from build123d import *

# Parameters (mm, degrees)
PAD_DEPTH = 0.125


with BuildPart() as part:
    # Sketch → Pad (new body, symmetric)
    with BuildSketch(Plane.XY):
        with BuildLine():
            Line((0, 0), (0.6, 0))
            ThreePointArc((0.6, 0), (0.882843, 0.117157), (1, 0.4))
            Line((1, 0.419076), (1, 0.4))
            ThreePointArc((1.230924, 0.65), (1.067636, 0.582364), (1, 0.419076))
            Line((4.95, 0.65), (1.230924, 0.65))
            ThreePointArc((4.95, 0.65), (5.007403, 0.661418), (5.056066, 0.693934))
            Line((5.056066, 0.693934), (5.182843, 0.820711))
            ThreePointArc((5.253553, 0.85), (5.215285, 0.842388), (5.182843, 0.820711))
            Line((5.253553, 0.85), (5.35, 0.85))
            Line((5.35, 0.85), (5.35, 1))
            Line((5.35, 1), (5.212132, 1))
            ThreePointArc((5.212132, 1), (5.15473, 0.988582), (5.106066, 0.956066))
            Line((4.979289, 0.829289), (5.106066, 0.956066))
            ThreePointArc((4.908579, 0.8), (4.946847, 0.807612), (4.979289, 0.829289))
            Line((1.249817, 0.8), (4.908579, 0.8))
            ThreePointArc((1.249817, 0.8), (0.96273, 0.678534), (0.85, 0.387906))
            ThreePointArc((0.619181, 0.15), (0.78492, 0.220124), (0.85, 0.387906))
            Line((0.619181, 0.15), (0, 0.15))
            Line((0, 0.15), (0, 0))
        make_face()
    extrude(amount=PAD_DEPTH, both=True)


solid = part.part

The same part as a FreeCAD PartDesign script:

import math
import FreeCAD as App
import Part
import Sketcher

V = App.Vector
Q = App.Units.Quantity

doc = App.newDocument("Part")
params = doc.addObject("Spreadsheet::Sheet", "Params")
for row, (alias, value) in enumerate([
    ("sketch1_radius", "0.399999 mm"),
    ("sketch1_radius2", "0.099999 mm"),
    ("sketch1_radius3", "0.150001 mm"),
    ("sketch1_width", "0.6 mm"),
    ("pad1_length", "0.25 mm"),
], start=1):
    params.set(f"A{row}", alias)
    params.set(f"B{row}", "=" + value)
    params.setAlias(f"B{row}", alias)

body = doc.addObject("PartDesign::Body", "Body")

# Sketch on XY plane
sketch1 = doc.addObject("Sketcher::SketchObject", "Sketch")
body.addObject(sketch1)
sketch1.AttachmentSupport = (doc.XY_Plane, [""])
sketch1.MapMode = "FlatFace"
sketch1.addGeometry([
    Part.LineSegment(V(0, 0, 0), V(0.6, 0, 0)),  # 0
    Part.ArcOfCircle(Part.Circle(V(0.6, 0.4, 0), V(0, 0, 1), 0.4), math.radians(-90), math.radians(0)),  # 1
    Part.LineSegment(V(1, 0.4, 0), V(1, 0.419, 0)),  # 2
    Part.ArcOfCircle(Part.Circle(V(1.231, 0.419, 0), V(0, 0, 1), 0.231), math.radians(90), math.radians(180)),  # 3
    Part.LineSegment(V(1.231, 0.65, 0), V(4.95, 0.65, 0)),  # 4
    Part.ArcOfCircle(Part.Circle(V(4.95, 0.8, 0), V(0, 0, 1), 0.15), math.radians(-90), math.radians(-45)),  # 5
    Part.LineSegment(V(5.056, 0.694, 0), V(5.183, 0.821, 0)),  # 6
    Part.ArcOfCircle(Part.Circle(V(5.254, 0.75, 0), V(0, 0, 1), 0.1), math.radians(90), math.radians(135)),  # 7
    Part.LineSegment(V(5.254, 0.85, 0), V(5.35, 0.85, 0)),  # 8
    Part.LineSegment(V(5.35, 0.85, 0), V(5.35, 1, 0)),  # 9
    Part.LineSegment(V(5.35, 1, 0), V(5.212, 1, 0)),  # 10
    Part.ArcOfCircle(Part.Circle(V(5.212, 0.85, 0), V(0, 0, 1), 0.15), math.radians(90), math.radians(135)),  # 11
    Part.LineSegment(V(5.106, 0.956, 0), V(4.979, 0.829, 0)),  # 12
    Part.ArcOfCircle(Part.Circle(V(4.909, 0.9, 0), V(0, 0, 1), 0.1), math.radians(-90), math.radians(-45)),  # 13
    Part.LineSegment(V(4.909, 0.8, 0), V(1.25, 0.8, 0)),  # 14
    Part.ArcOfCircle(Part.Circle(V(1.25, 0.4, 0), V(0, 0, 1), 0.4), math.radians(90), math.radians(182)),  # 15
    Part.ArcOfCircle(Part.Circle(V(0.619, 0.381, 0), V(0, 0, 1), 0.231), math.radians(-90), math.radians(2)),  # 16
    Part.LineSegment(V(0.619, 0.15, 0), V(0, 0.15, 0)),  # 17
    Part.LineSegment(V(0, 0.15, 0), V(0, 0, 0)),  # 18
], False)
sketch1.addConstraint([
    Sketcher.Constraint("Coincident", 0, 2, 1, 1),
    Sketcher.Constraint("Coincident", 1, 2, 2, 1),
    Sketcher.Constraint("Tangent", 2, 2, 3, 2),
    Sketcher.Constraint("Tangent", 3, 1, 4, 1),
    Sketcher.Constraint("Coincident", 4, 2, 5, 1),
    Sketcher.Constraint("Coincident", 5, 2, 6, 1),
    Sketcher.Constraint("Coincident", 6, 2, 7, 2),
    Sketcher.Constraint("Tangent", 7, 1, 8, 1),
    Sketcher.Constraint("Coincident", 8, 2, 9, 1),
    Sketcher.Constraint("Coincident", 9, 2, 10, 1),
    Sketcher.Constraint("Coincident", 10, 2, 11, 1),
    Sketcher.Constraint("Coincident", 11, 2, 12, 1),
    Sketcher.Constraint("Coincident", 12, 2, 13, 2),
    Sketcher.Constraint("Tangent", 13, 1, 14, 1),
    Sketcher.Constraint("Tangent", 14, 2, 15, 1),
    Sketcher.Constraint("Coincident", 15, 2, 16, 2),
    Sketcher.Constraint("Tangent", 16, 1, 17, 1),
    Sketcher.Constraint("Coincident", 17, 2, 18, 1),
    Sketcher.Constraint("Coincident", 18, 2, 0, 1),
    Sketcher.Constraint("Horizontal", 0),
    Sketcher.Constraint("Vertical", 2),
    Sketcher.Constraint("Horizontal", 4),
    Sketcher.Constraint("Horizontal", 8),
    Sketcher.Constraint("Vertical", 9),
    Sketcher.Constraint("Horizontal", 10),
    Sketcher.Constraint("Horizontal", 14),
    Sketcher.Constraint("Horizontal", 17),
    Sketcher.Constraint("Vertical", 18),
    Sketcher.Constraint("Coincident", 18, 2, -1, 1),
    Sketcher.Constraint("Equal", 7, 13),
    Sketcher.Constraint("Equal", 1, 15),
    Sketcher.Constraint("Equal", 3, 16),
    Sketcher.Constraint("Parallel", 6, 12),
    Sketcher.Constraint("Horizontal", 1, 3, 15, 3),
    Sketcher.Constraint("Horizontal", 15, 3, 1, 2),
    Sketcher.Constraint("Horizontal", 11, 3, 7, 1),
    Sketcher.Constraint("Vertical", 1, 3, 0, 2),
    Sketcher.Constraint("Vertical", 5, 3, 4, 2),
    Sketcher.Constraint("Vertical", 11, 3, 10, 2),
    Sketcher.Constraint("Equal", 9, 18),
    Sketcher.Constraint("Equal", 6, 12),
    Sketcher.Constraint("Radius", 1, 0.399999),
    Sketcher.Constraint("Radius", 7, 0.099999),
    Sketcher.Constraint("Angle", 6, Q("45 deg")),
    Sketcher.Constraint("Radius", 11, 0.150001),
    Sketcher.Constraint("DistanceX", 0, 1, 0, 2, 0.6),
    Sketcher.Constraint("DistanceY", -1, 1, 9, 2, 1.0),
    Sketcher.Constraint("DistanceY", 4, 2, 7, 3, 0.100001),
    Sketcher.Constraint("DistanceX", -1, 1, 5, 3, 4.950001),
    Sketcher.Constraint("DistanceX", -1, 1, 8, 2, 5.35),
    Sketcher.Constraint("DistanceX", -1, 1, 15, 2, 0.85),
    Sketcher.Constraint("DistanceY", 5, 3, 11, 3, 0.050002),
    Sketcher.Constraint("Radius", 3, 0.230924),
    Sketcher.Constraint("DistanceX", 14, 2, 14, 1, 3.658762),
    Sketcher.Constraint("DistanceX", 17, 2, 17, 1, 0.619181),
    Sketcher.Constraint("Distance", 6, 0.17929),
    Sketcher.Constraint("DistanceY", -1, 1, 6, 2, 0.820711),
    Sketcher.Constraint("DistanceX", -1, 1, 12, 2, 4.979289),
])
sketch1.setExpression("Constraints[41]", "Params.sketch1_radius")
sketch1.setExpression("Constraints[42]", "Params.sketch1_radius2")
sketch1.setExpression("Constraints[44]", "Params.sketch1_radius3")
sketch1.setExpression("Constraints[45]", "Params.sketch1_width")
pad1 = doc.addObject("PartDesign::Pad", "Pad")
body.addObject(pad1)
pad1.Profile = sketch1
pad1.setExpression("Length", "Params.pad1_length")
pad1.Midplane = True

doc.recompute()
